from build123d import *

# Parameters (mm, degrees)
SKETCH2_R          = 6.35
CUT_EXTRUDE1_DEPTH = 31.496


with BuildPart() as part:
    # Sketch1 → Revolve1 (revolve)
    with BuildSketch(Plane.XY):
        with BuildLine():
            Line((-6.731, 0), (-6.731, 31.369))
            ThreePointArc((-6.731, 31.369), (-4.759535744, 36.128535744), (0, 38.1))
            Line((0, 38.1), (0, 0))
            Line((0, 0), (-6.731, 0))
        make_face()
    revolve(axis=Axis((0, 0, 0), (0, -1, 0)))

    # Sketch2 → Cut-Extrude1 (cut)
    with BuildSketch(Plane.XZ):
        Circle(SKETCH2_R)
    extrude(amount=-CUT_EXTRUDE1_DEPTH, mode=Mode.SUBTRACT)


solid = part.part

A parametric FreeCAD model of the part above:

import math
import FreeCAD as App
import Part
import Sketcher

V = App.Vector
Q = App.Units.Quantity

doc = App.newDocument("Part")
params = doc.addObject("Spreadsheet::Sheet", "Params")
for row, (alias, value) in enumerate([
    ("sketch1_height", "1.5 in"),
    ("sketch1_radius", "0.265 in"),
    ("revolution_angle", "360 deg"),
    ("sketch2_diameter", "0.5 in"),
    ("pocket1_length", "1.24 in"),
], start=1):
    params.set(f"A{row}", alias)
    params.set(f"B{row}", "=" + value)
    params.setAlias(f"B{row}", alias)

body = doc.addObject("PartDesign::Body", "Body")

# Sketch on XY plane
sketch1 = body.newObject("Sketcher::SketchObject", "Sketch")
sketch1.AttachmentSupport = (doc.getObject("XY_Plane"), [""])
sketch1.MapMode = "FlatFace"
sketch1.addGeometry([
    Part.LineSegment(V(-7, 31, 0), V(-7, 0, 0)),
    Part.LineSegment(V(-7, 0, 0), V(0, 0, 0)),
    Part.LineSegment(V(0, 0, 0), V(0, 38, 0)),
    Part.ArcOfCircle(Part.Circle(V(0, 31, 0), V(0, 0, 1), 7), math.radians(90), math.radians(180)),
], False)
sketch1.addConstraint([
    Sketcher.Constraint("Coincident", 0, 2, 1, 1),
    Sketcher.Constraint("Coincident", 1, 2, 2, 1),
    Sketcher.Constraint("Coincident", 2, 2, 3, 1),
    Sketcher.Constraint("Tangent", 3, 2, 0, 1),
    Sketcher.Constraint("Vertical", 0),
    Sketcher.Constraint("Horizontal", 1),
    Sketcher.Constraint("Vertical", 2),
    Sketcher.Constraint("Coincident", 1, 2, -1, 1),
    Sketcher.Constraint("PointOnObject", 3, 3, -2),
    Sketcher.Constraint("DistanceY", 2, 1, 2, 2, Q("1.5 in")),
    Sketcher.Constraint("Radius", 3, Q("0.265 in")),
])
sketch1.setExpression("Constraints[9]", "Params.sketch1_height")
sketch1.setExpression("Constraints[10]", "Params.sketch1_radius")
revolution = body.newObject("PartDesign::Revolution", "Revolution")
revolution.Profile = sketch1
revolution.ReferenceAxis = (sketch1, ["V_Axis"])
revolution.setExpression("Angle", "Params.revolution_angle")

# Sketch on XZ plane
sketch2 = body.newObject("Sketcher::SketchObject", "Sketch001")
sketch2.AttachmentSupport = (doc.getObject("XZ_Plane"), [""])
sketch2.MapMode = "FlatFace"
sketch2.addGeometry(Part.Circle(V(0, 0, 0), V(0, 0, 1), 6), False)
sketch2.addConstraint([
    Sketcher.Constraint("Coincident", 0, 3, -1, 1),
    Sketcher.Constraint("Diameter", 0, Q("0.5 in")),
])
sketch2.setExpression("Constraints[1]", "Params.sketch2_diameter")
pocket1 = body.newObject("PartDesign::Pocket", "Pocket")
pocket1.Profile = sketch2
pocket1.setExpression("Length", "Params.pocket1_length")

doc.recompute()
